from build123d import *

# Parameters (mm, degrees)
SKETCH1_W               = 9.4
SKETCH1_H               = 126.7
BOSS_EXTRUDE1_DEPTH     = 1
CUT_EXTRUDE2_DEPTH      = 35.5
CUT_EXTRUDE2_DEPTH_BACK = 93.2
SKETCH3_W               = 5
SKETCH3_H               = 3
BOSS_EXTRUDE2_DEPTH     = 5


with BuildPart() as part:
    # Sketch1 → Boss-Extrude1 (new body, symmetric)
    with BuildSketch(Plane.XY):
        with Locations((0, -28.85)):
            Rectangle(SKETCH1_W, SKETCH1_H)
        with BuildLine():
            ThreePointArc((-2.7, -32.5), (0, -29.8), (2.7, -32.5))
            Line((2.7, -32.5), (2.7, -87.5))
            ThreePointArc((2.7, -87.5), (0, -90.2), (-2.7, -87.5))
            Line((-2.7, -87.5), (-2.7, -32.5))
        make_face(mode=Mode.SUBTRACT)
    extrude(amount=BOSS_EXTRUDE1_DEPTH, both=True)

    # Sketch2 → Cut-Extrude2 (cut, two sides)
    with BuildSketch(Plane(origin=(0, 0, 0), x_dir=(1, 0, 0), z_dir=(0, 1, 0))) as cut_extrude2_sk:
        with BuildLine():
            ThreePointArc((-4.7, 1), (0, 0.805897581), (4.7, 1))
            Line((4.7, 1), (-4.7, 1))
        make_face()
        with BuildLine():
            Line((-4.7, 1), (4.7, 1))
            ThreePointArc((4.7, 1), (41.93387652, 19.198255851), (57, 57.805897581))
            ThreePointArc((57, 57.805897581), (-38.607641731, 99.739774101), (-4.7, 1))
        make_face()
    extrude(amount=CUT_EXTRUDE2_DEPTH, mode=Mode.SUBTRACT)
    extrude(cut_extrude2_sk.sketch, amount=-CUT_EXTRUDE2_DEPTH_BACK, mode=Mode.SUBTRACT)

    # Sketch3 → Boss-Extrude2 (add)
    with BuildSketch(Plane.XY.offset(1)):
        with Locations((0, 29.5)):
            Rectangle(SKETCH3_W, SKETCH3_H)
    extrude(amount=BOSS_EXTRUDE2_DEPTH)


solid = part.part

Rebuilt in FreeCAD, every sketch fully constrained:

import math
import FreeCAD as App
import Part
import Sketcher
from FreeCAD import Vector
Q = App.Units.Quantity


def add_polygon(sketch, points):
    """Adds a closed chain of lines whose ends are joined by coincident constraints."""
    first, n = sketch.GeometryCount, len(points)
    for a, b in zip(points, points[1:] + points[:1]):
        sketch.addGeometry(Part.LineSegment(App.Vector(*a, 0), App.Vector(*b, 0)), False)
    for i in range(n):
        sketch.addConstraint(Sketcher.Constraint("Coincident", first + i, 2, first + (i + 1) % n, 1))

doc = App.newDocument("Part")
body = doc.addObject("PartDesign::Body", "Body")

sketch1 = body.newObject("Sketcher::SketchObject", "Sketch")
sketch1.AttachmentSupport = (doc.getObject("XY_Plane"), [""])
sketch1.MapMode = "FlatFace"
add_polygon(sketch1, [(-4.7, 34.5), (-4.7, -92.2), (4.7, -92.2), (4.7, 34.5)])
sketch1.addGeometry(Part.LineSegment(Vector(-2.7, -87.5, 0), Vector(-2.7, -32.5, 0)), False)
sketch1.addGeometry(Part.ArcOfCircle(Part.Circle(Vector(0, -32.5, 0), Vector(0, 0, 1), 2.7), math.radians(0), math.radians(180)), False)
sketch1.addGeometry(Part.LineSegment(Vector(2.7, -32.5, 0), Vector(2.7, -87.5, 0)), False)
sketch1.addGeometry(Part.ArcOfCircle(Part.Circle(Vector(0, -87.5, 0), Vector(0, 0, 1), 2.7), math.radians(180), math.radians(360)), False)
sketch1.addConstraint(Sketcher.Constraint("Tangent", 4, 2, 5, 2))
sketch1.addConstraint(Sketcher.Constraint("Tangent", 5, 1, 6, 1))
sketch1.addConstraint(Sketcher.Constraint("Tangent", 6, 2, 7, 2))
sketch1.addConstraint(Sketcher.Constraint("Tangent", 7, 1, 4, 1))
sketch1.addConstraint(Sketcher.Constraint("Vertical", 0))
sketch1.addConstraint(Sketcher.Constraint("Horizontal", 1))
sketch1.addConstraint(Sketcher.Constraint("Vertical", 2))
sketch1.addConstraint(Sketcher.Constraint("Horizontal", 3))
sketch1.addConstraint(Sketcher.Constraint("Vertical", 4))
sketch1.addConstraint(Sketcher.Constraint("Vertical", 6))
sketch1.addConstraint(Sketcher.Constraint("PointOnObject", 5, 3, -2))
sketch1.addConstraint(Sketcher.Constraint("Radius", 5, Q("2.7 mm")))
sketch1.addConstraint(Sketcher.Constraint("DistanceY", 4, 1, 4, 2, Q("55 mm")))
sketch1.addConstraint(Sketcher.Constraint("DistanceX", 1, 1, 1, 2, Q("9.4 mm")))
sketch1.addConstraint(Sketcher.Constraint("DistanceY", 0, 2, 0, 1, Q("126.7 mm")))
sketch1.addConstraint(Sketcher.Constraint("DistanceY", 5, 3, 2, 2, Q("67 mm")))
sketch1.addConstraint(Sketcher.Constraint("DistanceX", 0, 2, 4, 2, Q("2 mm")))
sketch1.addConstraint(Sketcher.Constraint("DistanceY", 5, 3, -1, 1, Q("32.5 mm")))
pad1 = body.newObject("PartDesign::Pad", "Pad")
pad1.Profile = sketch1
pad1.Length = 2
pad1.Midplane = True

sketch2 = body.newObject("Sketcher::SketchObject", "Sketch001")
sketch2.AttachmentSupport = (doc.getObject("XZ_Plane"), [""])
sketch2.MapMode = "FlatFace"
sketch2.addGeometry(Part.ArcOfCircle(Part.Circle(Vector(0, -58, 0), Vector(0, 0, 1), 57), math.radians(85.27), math.radians(94.73)), False)
sketch2.addGeometry(Part.ArcOfCircle(Part.Circle(Vector(0, -58, 0), Vector(0, 0, 1), 57), math.radians(0), math.radians(85)), False)
sketch2.addGeometry(Part.ArcOfCircle(Part.Circle(Vector(0, -58, 0), Vector(0, 0, 1), 57), math.radians(95), math.radians(360)), False)
sketch2.addConstraint(Sketcher.Constraint("Tangent", 0, 1, 1, 2))
sketch2.addConstraint(Sketcher.Constraint("Tangent", 1, 1, 2, 2))
sketch2.addConstraint(Sketcher.Constraint("Coincident", 2, 1, 0, 2))
sketch2.addConstraint(Sketcher.Constraint("Equal", 0, 1))
sketch2.addConstraint(Sketcher.Constraint("Symmetric", 0, 1, 2, 1, -2))
sketch2.addConstraint(Sketcher.Constraint("Horizontal", 2, 3, 1, 1))
sketch2.addConstraint(Sketcher.Constraint("Radius", 0, Q("57 mm")))
sketch2.addConstraint(Sketcher.Constraint("DistanceY", 0, 1, -1, 1, Q("1 mm")))
sketch2.addConstraint(Sketcher.Constraint("DistanceX", -1, 1, 0, 1, Q("4.7 mm")))
pocket1 = body.newObject("PartDesign::Pocket", "Pocket")
pocket1.Profile = sketch2
pocket1.Type = "ThroughAll"
pocket1.Midplane = True

sketch3 = body.newObject("Sketcher::SketchObject", "Sketch002")
sketch3.AttachmentSupport = (doc.getObject("XY_Plane"), [""])
sketch3.MapMode = "FlatFace"
sketch3.AttachmentOffset = App.Placement(Vector(0, 0, 1), App.Rotation())
add_polygon(sketch3, [(-2.5, 31), (-2.5, 28), (2.5, 28), (2.5, 31)])
sketch3.addConstraint(Sketcher.Constraint("Vertical", 0))
sketch3.addConstraint(Sketcher.Constraint("Horizontal", 1))
sketch3.addConstraint(Sketcher.Constraint("Vertical", 2))
sketch3.addConstraint(Sketcher.Constraint("Horizontal", 3))
sketch3.addConstraint(Sketcher.Constraint("DistanceX", 1, 1, 1, 2, Q("5 mm")))
sketch3.addConstraint(Sketcher.Constraint("DistanceY", 0, 2, 0, 1, Q("3 mm")))
sketch3.addConstraint(Sketcher.Constraint("DistanceY", -1, 1, 0, 2, Q("28 mm")))
sketch3.addConstraint(Sketcher.Constraint("DistanceX", 0, 2, -1, 1, Q("2.5 mm")))
pad2 = body.newObject("PartDesign::Pad", "Pad001")
pad2.Profile = sketch3
pad2.Length = 5

doc.recompute()
